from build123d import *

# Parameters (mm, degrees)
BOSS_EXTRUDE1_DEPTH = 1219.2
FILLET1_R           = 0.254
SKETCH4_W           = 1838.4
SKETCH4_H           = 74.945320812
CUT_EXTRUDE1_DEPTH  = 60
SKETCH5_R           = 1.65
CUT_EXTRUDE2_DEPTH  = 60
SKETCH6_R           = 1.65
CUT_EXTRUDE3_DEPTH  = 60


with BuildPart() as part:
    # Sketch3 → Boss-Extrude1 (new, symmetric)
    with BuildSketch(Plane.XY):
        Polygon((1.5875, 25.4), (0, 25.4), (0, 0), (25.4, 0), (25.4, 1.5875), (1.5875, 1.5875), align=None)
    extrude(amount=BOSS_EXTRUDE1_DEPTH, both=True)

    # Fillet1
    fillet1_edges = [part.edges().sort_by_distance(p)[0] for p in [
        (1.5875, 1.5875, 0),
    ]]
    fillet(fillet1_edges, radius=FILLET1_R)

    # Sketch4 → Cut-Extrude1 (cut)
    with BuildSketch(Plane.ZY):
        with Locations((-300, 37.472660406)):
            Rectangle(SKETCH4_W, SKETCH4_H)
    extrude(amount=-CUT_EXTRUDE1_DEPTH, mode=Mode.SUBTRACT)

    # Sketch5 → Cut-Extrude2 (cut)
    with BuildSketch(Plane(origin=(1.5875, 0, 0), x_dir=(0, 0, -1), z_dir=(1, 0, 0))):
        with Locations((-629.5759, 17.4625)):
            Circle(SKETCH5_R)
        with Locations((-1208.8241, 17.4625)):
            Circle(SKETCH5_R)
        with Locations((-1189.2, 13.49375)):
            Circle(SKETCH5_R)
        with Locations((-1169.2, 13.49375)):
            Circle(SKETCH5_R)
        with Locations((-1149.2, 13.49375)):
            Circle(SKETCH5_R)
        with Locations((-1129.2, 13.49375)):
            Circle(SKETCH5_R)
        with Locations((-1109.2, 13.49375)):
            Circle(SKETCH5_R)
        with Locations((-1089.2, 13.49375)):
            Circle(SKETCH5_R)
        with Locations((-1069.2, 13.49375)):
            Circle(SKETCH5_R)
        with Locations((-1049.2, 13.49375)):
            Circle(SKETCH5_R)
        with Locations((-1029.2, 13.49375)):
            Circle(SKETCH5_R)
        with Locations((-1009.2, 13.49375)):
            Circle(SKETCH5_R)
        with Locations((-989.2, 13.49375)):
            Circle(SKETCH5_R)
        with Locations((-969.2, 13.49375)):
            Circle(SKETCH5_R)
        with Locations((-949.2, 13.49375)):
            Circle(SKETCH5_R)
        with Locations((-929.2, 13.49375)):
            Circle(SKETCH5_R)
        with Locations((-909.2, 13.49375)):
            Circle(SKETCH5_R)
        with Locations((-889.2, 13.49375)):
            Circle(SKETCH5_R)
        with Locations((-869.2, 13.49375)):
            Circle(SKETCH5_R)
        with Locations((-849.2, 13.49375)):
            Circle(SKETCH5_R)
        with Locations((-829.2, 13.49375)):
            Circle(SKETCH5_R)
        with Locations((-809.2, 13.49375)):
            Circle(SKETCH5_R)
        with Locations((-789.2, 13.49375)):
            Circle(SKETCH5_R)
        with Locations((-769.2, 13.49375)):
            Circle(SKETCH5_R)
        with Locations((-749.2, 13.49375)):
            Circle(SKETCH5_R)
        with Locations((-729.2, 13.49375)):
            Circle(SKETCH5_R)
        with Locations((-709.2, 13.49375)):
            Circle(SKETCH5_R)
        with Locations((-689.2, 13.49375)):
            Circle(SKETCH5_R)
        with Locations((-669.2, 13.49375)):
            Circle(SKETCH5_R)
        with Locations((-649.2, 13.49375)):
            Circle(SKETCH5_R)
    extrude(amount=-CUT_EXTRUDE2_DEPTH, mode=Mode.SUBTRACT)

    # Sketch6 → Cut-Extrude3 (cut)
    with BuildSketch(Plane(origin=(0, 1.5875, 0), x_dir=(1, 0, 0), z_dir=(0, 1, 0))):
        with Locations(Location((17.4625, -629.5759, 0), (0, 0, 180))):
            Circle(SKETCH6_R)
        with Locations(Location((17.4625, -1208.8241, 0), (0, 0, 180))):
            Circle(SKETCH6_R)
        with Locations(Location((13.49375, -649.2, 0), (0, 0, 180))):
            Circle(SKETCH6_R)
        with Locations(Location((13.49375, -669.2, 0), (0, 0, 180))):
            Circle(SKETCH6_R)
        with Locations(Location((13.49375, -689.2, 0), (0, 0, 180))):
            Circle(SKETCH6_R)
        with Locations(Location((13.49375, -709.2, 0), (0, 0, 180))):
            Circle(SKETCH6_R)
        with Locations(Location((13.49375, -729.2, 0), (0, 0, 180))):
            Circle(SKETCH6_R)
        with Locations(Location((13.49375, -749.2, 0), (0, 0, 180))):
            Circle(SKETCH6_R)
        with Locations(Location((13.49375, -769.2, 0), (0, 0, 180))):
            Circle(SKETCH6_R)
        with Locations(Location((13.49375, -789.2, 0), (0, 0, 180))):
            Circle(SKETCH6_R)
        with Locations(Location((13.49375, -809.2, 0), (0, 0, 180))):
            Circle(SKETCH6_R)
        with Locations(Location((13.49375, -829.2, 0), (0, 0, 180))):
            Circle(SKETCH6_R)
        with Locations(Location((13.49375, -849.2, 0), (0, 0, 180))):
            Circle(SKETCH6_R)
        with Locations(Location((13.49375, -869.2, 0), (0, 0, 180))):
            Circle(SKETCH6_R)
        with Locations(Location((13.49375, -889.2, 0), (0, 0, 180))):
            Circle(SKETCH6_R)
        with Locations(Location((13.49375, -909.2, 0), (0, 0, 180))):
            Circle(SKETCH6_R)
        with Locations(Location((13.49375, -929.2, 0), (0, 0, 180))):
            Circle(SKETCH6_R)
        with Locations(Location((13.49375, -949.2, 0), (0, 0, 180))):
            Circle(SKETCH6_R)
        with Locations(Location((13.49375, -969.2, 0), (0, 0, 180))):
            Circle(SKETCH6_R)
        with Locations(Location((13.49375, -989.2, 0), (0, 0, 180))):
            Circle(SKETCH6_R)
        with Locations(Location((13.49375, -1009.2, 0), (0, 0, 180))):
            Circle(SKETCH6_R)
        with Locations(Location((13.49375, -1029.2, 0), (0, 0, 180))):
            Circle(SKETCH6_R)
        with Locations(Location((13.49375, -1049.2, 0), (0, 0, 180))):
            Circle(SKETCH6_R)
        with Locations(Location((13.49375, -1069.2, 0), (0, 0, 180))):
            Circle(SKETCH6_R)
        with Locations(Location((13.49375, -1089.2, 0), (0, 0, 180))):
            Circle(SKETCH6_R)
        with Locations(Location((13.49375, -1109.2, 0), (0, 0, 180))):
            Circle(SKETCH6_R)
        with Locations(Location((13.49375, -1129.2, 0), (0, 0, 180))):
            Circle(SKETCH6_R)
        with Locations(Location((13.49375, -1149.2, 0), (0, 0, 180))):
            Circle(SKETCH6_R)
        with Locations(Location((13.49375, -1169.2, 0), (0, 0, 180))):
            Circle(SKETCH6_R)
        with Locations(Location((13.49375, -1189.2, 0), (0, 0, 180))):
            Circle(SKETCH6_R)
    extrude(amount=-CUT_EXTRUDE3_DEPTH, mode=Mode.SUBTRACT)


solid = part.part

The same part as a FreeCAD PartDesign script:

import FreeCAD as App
import Part
import Sketcher
from FreeCAD import Vector
Q = App.Units.Quantity


def edges_at(feature, points):
    """Names of the edges that pass closest to the given points."""
    edges = feature.Shape.Edges
    near = lambda p: min(range(len(edges)), key=lambda i: edges[i].distToShape(Part.Vertex(*p))[0])
    return sorted({f"Edge{near(p) + 1}" for p in points})

doc = App.newDocument("Part")
params = doc.addObject("Spreadsheet::Sheet", "Params")
for row, (alias, value) in enumerate([
    ("sketch1_width", "1 in"),
    ("sketch1_width2", "0.0625 in"),
    ("pad1_length", "96 in"),
    ("fillet_radius", "0.01 in"),
    ("pocket1_length", "60 mm"),
    ("pocket2_length", "60 mm"),
    ("pocket3_length", "60 mm"),
], start=1):
    params.set(f"A{row}", alias)
    params.set(f"B{row}", "=" + value)
    params.setAlias(f"B{row}", alias)

body = doc.addObject("PartDesign::Body", "Body")

sketch1 = doc.addObject("Sketcher::SketchObject", "Sketch")
body.addObject(sketch1)
sketch1.AttachmentSupport = (doc.XY_Plane, [""])
sketch1.MapMode = "FlatFace"
sketch1.addGeometry([
    Part.LineSegment(Vector(1.6, 25.4, 0), Vector(0, 25.4, 0)),
    Part.LineSegment(Vector(0, 25.4, 0), Vector(0, 0, 0)),
    Part.LineSegment(Vector(0, 0, 0), Vector(25.4, 0, 0)),
    Part.LineSegment(Vector(25.4, 0, 0), Vector(25.4, 1.6, 0)),
    Part.LineSegment(Vector(25.4, 1.6, 0), Vector(1.6, 1.6, 0)),
    Part.LineSegment(Vector(1.6, 1.6, 0), Vector(1.6, 25.4, 0)),
], False)
sketch1.addConstraint([
    Sketcher.Constraint("Coincident", 0, 2, 1, 1),
    Sketcher.Constraint("Coincident", 1, 2, 2, 1),
    Sketcher.Constraint("Coincident", 2, 2, 3, 1),
    Sketcher.Constraint("Coincident", 3, 2, 4, 1),
    Sketcher.Constraint("Coincident", 4, 2, 5, 1),
    Sketcher.Constraint("Coincident", 5, 2, 0, 1),
    Sketcher.Constraint("Horizontal", 0),
    Sketcher.Constraint("Vertical", 1),
    Sketcher.Constraint("Horizontal", 2),
    Sketcher.Constraint("Vertical", 3),
    Sketcher.Constraint("Horizontal", 4),
    Sketcher.Constraint("Vertical", 5),
    Sketcher.Constraint("Coincident", 1, 2, -1, 1),
    Sketcher.Constraint("Equal", 2, 1),
    Sketcher.Constraint("Equal", 0, 3),
    Sketcher.Constraint("DistanceX", 2, 1, 2, 2, Q("1 in")),
    Sketcher.Constraint("DistanceX", 0, 2, 0, 1, Q("0.0625 in")),
])
sketch1.setExpression("Constraints[15]", "Params.sketch1_width")
sketch1.setExpression("Constraints[16]", "Params.sketch1_width2")
pad1 = doc.addObject("PartDesign::Pad", "Pad")
body.addObject(pad1)
pad1.Profile = sketch1
pad1.setExpression("Length", "Params.pad1_length")
pad1.Midplane = True
doc.recompute()

fillet = doc.addObject("PartDesign::Fillet", "Fillet")
body.addObject(fillet)
fillet.Base = (pad1, edges_at(pad1, [(1.587, 1.587, 0)]))
fillet.setExpression("Radius", "Params.fillet_radius")

sketch2 = doc.addObject("Sketcher::SketchObject", "Sketch001")
body.addObject(sketch2)
sketch2.AttachmentSupport = (doc.YZ_Plane, [""])
sketch2.MapMode = "FlatFace"
sketch2.addGeometry([
    Part.LineSegment(Vector(75, -1219, 0), Vector(0, -1219, 0)),
    Part.LineSegment(Vector(0, -1219, 0), Vector(0, 619, 0)),
    Part.LineSegment(Vector(0, 619, 0), Vector(75, 619, 0)),
    Part.LineSegment(Vector(75, 619, 0), Vector(75, -1219, 0)),
], False)
sketch2.addConstraint([
    Sketcher.Constraint("Coincident", 0, 2, 1, 1),
    Sketcher.Constraint("Coincident", 1, 2, 2, 1),
    Sketcher.Constraint("Coincident", 2, 2, 3, 1),
    Sketcher.Constraint("Coincident", 3, 2, 0, 1),
    Sketcher.Constraint("Horizontal", 0),
    Sketcher.Constraint("Vertical", 1),
    Sketcher.Constraint("Horizontal", 2),
    Sketcher.Constraint("Vertical", 3),
    Sketcher.Constraint("PointOnObject", 0, 2, -2),
    Sketcher.Constraint("DistanceY", 0, 2, -1, 1, Q("48 in")),
    Sketcher.Constraint("DistanceY", 1, 1, 1, 2, Q("1838.4 mm")),
    Sketcher.Constraint("DistanceX", 0, 2, 0, 1, Q("74.945321 mm")),
])
pocket1 = doc.addObject("PartDesign::Pocket", "Pocket")
body.addObject(pocket1)
pocket1.Profile = sketch2
pocket1.setExpression("Length", "Params.pocket1_length")
pocket1.Reversed = True

sketch3 = doc.addObject("Sketcher::SketchObject", "Sketch002")
body.addObject(sketch3)
sketch3.AttachmentSupport = (doc.YZ_Plane, [""])
sketch3.MapMode = "FlatFace"
sketch3.AttachmentOffset = App.Placement(Vector(0, 0, 0.0625 * 25.4), App.Rotation())
sketch3.addGeometry([
    Part.Circle(Vector(17.5, 629.6, 0), Vector(0, 0, 1), 1.6),
    Part.Circle(Vector(17.5, 1208.8, 0), Vector(0, 0, 1), 1.6),
    Part.Circle(Vector(13.5, 1189.2, 0), Vector(0, 0, 1), 1.6),
    Part.Circle(Vector(13.5, 1169.2, 0), Vector(0, 0, 1), 1.6),
    Part.Circle(Vector(13.5, 1149.2, 0), Vector(0, 0, 1), 1.6),
    Part.Circle(Vector(13.5, 1129.2, 0), Vector(0, 0, 1), 1.6),
    Part.Circle(Vector(13.5, 1109.2, 0), Vector(0, 0, 1), 1.6),
    Part.Circle(Vector(13.5, 1089.2, 0), Vector(0, 0, 1), 1.6),
    Part.Circle(Vector(13.5, 1069.2, 0), Vector(0, 0, 1), 1.6),
    Part.Circle(Vector(13.5, 1049.2, 0), Vector(0, 0, 1), 1.6),
    Part.Circle(Vector(13.5, 1029.2, 0), Vector(0, 0, 1), 1.6),
    Part.Circle(Vector(13.5, 1009.2, 0), Vector(0, 0, 1), 1.6),
    Part.Circle(Vector(13.5, 989.2, 0), Vector(0, 0, 1), 1.6),
    Part.Circle(Vector(13.5, 969.2, 0), Vector(0, 0, 1), 1.6),
    Part.Circle(Vector(13.5, 949.2, 0), Vector(0, 0, 1), 1.6),
    Part.Circle(Vector(13.5, 929.2, 0), Vector(0, 0, 1), 1.6),
    Part.Circle(Vector(13.5, 909.2, 0), Vector(0, 0, 1), 1.6),
    Part.Circle(Vector(13.5, 889.2, 0), Vector(0, 0, 1), 1.6),
    Part.Circle(Vector(13.5, 869.2, 0), Vector(0, 0, 1), 1.6),
    Part.Circle(Vector(13.5, 849.2, 0), Vector(0, 0, 1), 1.6),
    Part.Circle(Vector(13.5, 829.2, 0), Vector(0, 0, 1), 1.6),
    Part.Circle(Vector(13.5, 809.2, 0), Vector(0, 0, 1), 1.6),
    Part.Circle(Vector(13.5, 789.2, 0), Vector(0, 0, 1), 1.6),
    Part.Circle(Vector(13.5, 769.2, 0), Vector(0, 0, 1), 1.6),
    Part.Circle(Vector(13.5, 749.2, 0), Vector(0, 0, 1), 1.6),
    Part.Circle(Vector(13.5, 729.2, 0), Vector(0, 0, 1), 1.6),
    Part.Circle(Vector(13.5, 709.2, 0), Vector(0, 0, 1), 1.6),
    Part.Circle(Vector(13.5, 689.2, 0), Vector(0, 0, 1), 1.6),
    Part.Circle(Vector(13.5, 669.2, 0), Vector(0, 0, 1), 1.6),
    Part.Circle(Vector(13.5, 649.2, 0), Vector(0, 0, 1), 1.6),
], False)
sketch3.addConstraint([
    Sketcher.Constraint("Equal", 0, 1),
    Sketcher.Constraint("Equal", 1, 2),
    Sketcher.Constraint("Equal", 2, 3),
    Sketcher.Constraint("Equal", 3, 4),
    Sketcher.Constraint("Equal", 4, 5),
    Sketcher.Constraint("Equal", 5, 6),
    Sketcher.Constraint("Equal", 6, 7),
    Sketcher.Constraint("Equal", 7, 8),
    Sketcher.Constraint("Equal", 8, 9),
    Sketcher.Constraint("Equal", 9, 10),
    Sketcher.Constraint("Equal", 10, 11),
    Sketcher.Constraint("Equal", 11, 12),
    Sketcher.Constraint("Equal", 12, 13),
    Sketcher.Constraint("Equal", 13, 14),
    Sketcher.Constraint("Equal", 14, 15),
    Sketcher.Constraint("Equal", 15, 16),
    Sketcher.Constraint("Equal", 16, 17),
    Sketcher.Constraint("Equal", 17, 18),
    Sketcher.Constraint("Equal", 18, 19),
    Sketcher.Constraint("Equal", 19, 20),
    Sketcher.Constraint("Equal", 20, 21),
    Sketcher.Constraint("Equal", 21, 22),
    Sketcher.Constraint("Equal", 22, 23),
    Sketcher.Constraint("Equal", 23, 24),
    Sketcher.Constraint("Equal", 24, 25),
    Sketcher.Constraint("Equal", 25, 26),
    Sketcher.Constraint("Equal", 26, 27),
    Sketcher.Constraint("Equal", 27, 28),
    Sketcher.Constraint("Equal", 28, 29),
    Sketcher.Constraint("Vertical", 0, 3, 1, 3),
    Sketcher.Constraint("Vertical", 2, 3, 3, 3),
    Sketcher.Constraint("Vertical", 3, 3, 4, 3),
    Sketcher.Constraint("Vertical", 4, 3, 5, 3),
    Sketcher.Constraint("Vertical", 5, 3, 6, 3),
    Sketcher.Constraint("Vertical", 6, 3, 7, 3),
    Sketcher.Constraint("Vertical", 7, 3, 8, 3),
    Sketcher.Constraint("Vertical", 8, 3, 9, 3),
    Sketcher.Constraint("Vertical", 9, 3, 10, 3),
    Sketcher.Constraint("Vertical", 10, 3, 11, 3),
    Sketcher.Constraint("Vertical", 11, 3, 12, 3),
    Sketcher.Constraint("Vertical", 12, 3, 13, 3),
    Sketcher.Constraint("Vertical", 13, 3, 14, 3),
    Sketcher.Constraint("Vertical", 14, 3, 15, 3),
    Sketcher.Constraint("Vertical", 15, 3, 16, 3),
    Sketcher.Constraint("Vertical", 16, 3, 17, 3),
    Sketcher.Constraint("Vertical", 17, 3, 18, 3),
    Sketcher.Constraint("Vertical", 18, 3, 19, 3),
    Sketcher.Constraint("Vertical", 19, 3, 20, 3),
    Sketcher.Constraint("Vertical", 20, 3, 21, 3),
    Sketcher.Constraint("Vertical", 21, 3, 22, 3),
    Sketcher.Constraint("Vertical", 22, 3, 23, 3),
    Sketcher.Constraint("Vertical", 23, 3, 24, 3),
    Sketcher.Constraint("Vertical", 24, 3, 25, 3),
    Sketcher.Constraint("Vertical", 25, 3, 26, 3),
    Sketcher.Constraint("Vertical", 26, 3, 27, 3),
    Sketcher.Constraint("Vertical", 27, 3, 28, 3),
    Sketcher.Constraint("Vertical", 28, 3, 29, 3),
    Sketcher.Constraint("Diameter", 0, Q("3.3 mm")),
    Sketcher.Constraint("DistanceX", -1, 1, 0, 3, Q("0.6875 in")),
    Sketcher.Constraint("DistanceX", -1, 1, 2, 3, Q("0.53125 in")),
    Sketcher.Constraint("DistanceY", -1, 1, 1, 3, Q("47.5915 in")),
    Sketcher.Constraint("DistanceY", -1, 1, 0, 3, Q("629.5759 mm")),
    Sketcher.Constraint("DistanceY", -1, 1, 2, 3, Q("1189.2 mm")),
    Sketcher.Constraint("DistanceY", -1, 1, 3, 3, Q("1169.2 mm")),
    Sketcher.Constraint("DistanceY", -1, 1, 4, 3, Q("1149.2 mm")),
    Sketcher.Constraint("DistanceY", -1, 1, 5, 3, Q("1129.2 mm")),
    Sketcher.Constraint("DistanceY", -1, 1, 6, 3, Q("1109.2 mm")),
    Sketcher.Constraint("DistanceY", -1, 1, 7, 3, Q("1089.2 mm")),
    Sketcher.Constraint("DistanceY", -1, 1, 8, 3, Q("1069.2 mm")),
    Sketcher.Constraint("DistanceY", -1, 1, 9, 3, Q("1049.2 mm")),
    Sketcher.Constraint("DistanceY", -1, 1, 10, 3, Q("1029.2 mm")),
    Sketcher.Constraint("DistanceY", -1, 1, 11, 3, Q("1009.2 mm")),
    Sketcher.Constraint("DistanceY", -1, 1, 12, 3, Q("989.2 mm")),
    Sketcher.Constraint("DistanceY", -1, 1, 13, 3, Q("969.2 mm")),
    Sketcher.Constraint("DistanceY", -1, 1, 14, 3, Q("949.2 mm")),
    Sketcher.Constraint("DistanceY", -1, 1, 15, 3, Q("929.2 mm")),
    Sketcher.Constraint("DistanceY", -1, 1, 16, 3, Q("909.2 mm")),
    Sketcher.Constraint("DistanceY", -1, 1, 17, 3, Q("889.2 mm")),
    Sketcher.Constraint("DistanceY", -1, 1, 18, 3, Q("869.2 mm")),
    Sketcher.Constraint("DistanceY", -1, 1, 19, 3, Q("849.2 mm")),
    Sketcher.Constraint("DistanceY", -1, 1, 20, 3, Q("829.2 mm")),
    Sketcher.Constraint("DistanceY", -1, 1, 21, 3, Q("809.2 mm")),
    Sketcher.Constraint("DistanceY", -1, 1, 22, 3, Q("789.2 mm")),
    Sketcher.Constraint("DistanceY", -1, 1, 23, 3, Q("769.2 mm")),
    Sketcher.Constraint("DistanceY", -1, 1, 24, 3, Q("749.2 mm")),
    Sketcher.Constraint("DistanceY", -1, 1, 25, 3, Q("729.2 mm")),
    Sketcher.Constraint("DistanceY", -1, 1, 26, 3, Q("709.2 mm")),
    Sketcher.Constraint("DistanceY", -1, 1, 27, 3, Q("689.2 mm")),
    Sketcher.Constraint("DistanceY", -1, 1, 28, 3, Q("669.2 mm")),
    Sketcher.Constraint("DistanceY", -1, 1, 29, 3, Q("649.2 mm")),
])
pocket2 = doc.addObject("PartDesign::Pocket", "Pocket001")
body.addObject(pocket2)
pocket2.Profile = sketch3
pocket2.setExpression("Length", "Params.pocket2_length")

sketch4 = doc.addObject("Sketcher::SketchObject", "Sketch003")
body.addObject(sketch4)
sketch4.AttachmentSupport = (doc.XZ_Plane, [""])
sketch4.MapMode = "FlatFace"
sketch4.AttachmentOffset = App.Placement(Vector(0, 0, -0.0625 * 25.4), App.Rotation())
sketch4.addGeometry([
    Part.Circle(Vector(17.5, 629.6, 0), Vector(0, 0, 1), 1.6),
    Part.Circle(Vector(17.5, 1208.8, 0), Vector(0, 0, 1), 1.6),
    Part.Circle(Vector(13.5, 649.2, 0), Vector(0, 0, 1), 1.6),
    Part.Circle(Vector(13.5, 669.2, 0), Vector(0, 0, 1), 1.6),
    Part.Circle(Vector(13.5, 689.2, 0), Vector(0, 0, 1), 1.6),
    Part.Circle(Vector(13.5, 709.2, 0), Vector(0, 0, 1), 1.6),
    Part.Circle(Vector(13.5, 729.2, 0), Vector(0, 0, 1), 1.6),
    Part.Circle(Vector(13.5, 749.2, 0), Vector(0, 0, 1), 1.6),
    Part.Circle(Vector(13.5, 769.2, 0), Vector(0, 0, 1), 1.6),
    Part.Circle(Vector(13.5, 789.2, 0), Vector(0, 0, 1), 1.6),
    Part.Circle(Vector(13.5, 809.2, 0), Vector(0, 0, 1), 1.6),
    Part.Circle(Vector(13.5, 829.2, 0), Vector(0, 0, 1), 1.6),
    Part.Circle(Vector(13.5, 849.2, 0), Vector(0, 0, 1), 1.6),
    Part.Circle(Vector(13.5, 869.2, 0), Vector(0, 0, 1), 1.6),
    Part.Circle(Vector(13.5, 889.2, 0), Vector(0, 0, 1), 1.6),
    Part.Circle(Vector(13.5, 909.2, 0), Vector(0, 0, 1), 1.6),
    Part.Circle(Vector(13.5, 929.2, 0), Vector(0, 0, 1), 1.6),
    Part.Circle(Vector(13.5, 949.2, 0), Vector(0, 0, 1), 1.6),
    Part.Circle(Vector(13.5, 969.2, 0), Vector(0, 0, 1), 1.6),
    Part.Circle(Vector(13.5, 989.2, 0), Vector(0, 0, 1), 1.6),
    Part.Circle(Vector(13.5, 1009.2, 0), Vector(0, 0, 1), 1.6),
    Part.Circle(Vector(13.5, 1029.2, 0), Vector(0, 0, 1), 1.6),
    Part.Circle(Vector(13.5, 1049.2, 0), Vector(0, 0, 1), 1.6),
    Part.Circle(Vector(13.5, 1069.2, 0), Vector(0, 0, 1), 1.6),
    Part.Circle(Vector(13.5, 1089.2, 0), Vector(0, 0, 1), 1.6),
    Part.Circle(Vector(13.5, 1109.2, 0), Vector(0, 0, 1), 1.6),
    Part.Circle(Vector(13.5, 1129.2, 0), Vector(0, 0, 1), 1.6),
    Part.Circle(Vector(13.5, 1149.2, 0), Vector(0, 0, 1), 1.6),
    Part.Circle(Vector(13.5, 1169.2, 0), Vector(0, 0, 1), 1.6),
    Part.Circle(Vector(13.5, 1189.2, 0), Vector(0, 0, 1), 1.6),
], False)
sketch4.addConstraint([
    Sketcher.Constraint("Equal", 0, 1),
    Sketcher.Constraint("Equal", 1, 2),
    Sketcher.Constraint("Equal", 2, 3),
    Sketcher.Constraint("Equal", 3, 4),
    Sketcher.Constraint("Equal", 4, 5),
    Sketcher.Constraint("Equal", 5, 6),
    Sketcher.Constraint("Equal", 6, 7),
    Sketcher.Constraint("Equal", 7, 8),
    Sketcher.Constraint("Equal", 8, 9),
    Sketcher.Constraint("Equal", 9, 10),
    Sketcher.Constraint("Equal", 10, 11),
    Sketcher.Constraint("Equal", 11, 12),
    Sketcher.Constraint("Equal", 12, 13),
    Sketcher.Constraint("Equal", 13, 14),
    Sketcher.Constraint("Equal", 14, 15),
    Sketcher.Constraint("Equal", 15, 16),
    Sketcher.Constraint("Equal", 16, 17),
    Sketcher.Constraint("Equal", 17, 18),
    Sketcher.Constraint("Equal", 18, 19),
    Sketcher.Constraint("Equal", 19, 20),
    Sketcher.Constraint("Equal", 20, 21),
    Sketcher.Constraint("Equal", 21, 22),
    Sketcher.Constraint("Equal", 22, 23),
    Sketcher.Constraint("Equal", 23, 24),
    Sketcher.Constraint("Equal", 24, 25),
    Sketcher.Constraint("Equal", 25, 26),
    Sketcher.Constraint("Equal", 26, 27),
    Sketcher.Constraint("Equal", 27, 28),
    Sketcher.Constraint("Equal", 28, 29),
    Sketcher.Constraint("Vertical", 0, 3, 1, 3),
    Sketcher.Constraint("Vertical", 2, 3, 3, 3),
    Sketcher.Constraint("Vertical", 3, 3, 4, 3),
    Sketcher.Constraint("Vertical", 4, 3, 5, 3),
    Sketcher.Constraint("Vertical", 5, 3, 6, 3),
    Sketcher.Constraint("Vertical", 6, 3, 7, 3),
    Sketcher.Constraint("Vertical", 7, 3, 8, 3),
    Sketcher.Constraint("Vertical", 8, 3, 9, 3),
    Sketcher.Constraint("Vertical", 9, 3, 10, 3),
    Sketcher.Constraint("Vertical", 10, 3, 11, 3),
    Sketcher.Constraint("Vertical", 11, 3, 12, 3),
    Sketcher.Constraint("Vertical", 12, 3, 13, 3),
    Sketcher.Constraint("Vertical", 13, 3, 14, 3),
    Sketcher.Constraint("Vertical", 14, 3, 15, 3),
    Sketcher.Constraint("Vertical", 15, 3, 16, 3),
    Sketcher.Constraint("Vertical", 16, 3, 17, 3),
    Sketcher.Constraint("Vertical", 17, 3, 18, 3),
    Sketcher.Constraint("Vertical", 18, 3, 19, 3),
    Sketcher.Constraint("Vertical", 19, 3, 20, 3),
    Sketcher.Constraint("Vertical", 20, 3, 21, 3),
    Sketcher.Constraint("Vertical", 21, 3, 22, 3),
    Sketcher.Constraint("Vertical", 22, 3, 23, 3),
    Sketcher.Constraint("Vertical", 23, 3, 24, 3),
    Sketcher.Constraint("Vertical", 24, 3, 25, 3),
    Sketcher.Constraint("Vertical", 25, 3, 26, 3),
    Sketcher.Constraint("Vertical", 26, 3, 27, 3),
    Sketcher.Constraint("Vertical", 27, 3, 28, 3),
    Sketcher.Constraint("Vertical", 28, 3, 29, 3),
    Sketcher.Constraint("Diameter", 0, Q("3.3 mm")),
    Sketcher.Constraint("DistanceX", -1, 1, 0, 3, Q("0.6875 in")),
    Sketcher.Constraint("DistanceX", -1, 1, 2, 3, Q("0.53125 in")),
    Sketcher.Constraint("DistanceY", -1, 1, 1, 3, Q("47.5915 in")),
    Sketcher.Constraint("DistanceY", -1, 1, 0, 3, Q("629.5759 mm")),
    Sketcher.Constraint("DistanceY", -1, 1, 2, 3, Q("649.2 mm")),
    Sketcher.Constraint("DistanceY", -1, 1, 3, 3, Q("669.2 mm")),
    Sketcher.Constraint("DistanceY", -1, 1, 4, 3, Q("689.2 mm")),
    Sketcher.Constraint("DistanceY", -1, 1, 5, 3, Q("709.2 mm")),
    Sketcher.Constraint("DistanceY", -1, 1, 6, 3, Q("729.2 mm")),
    Sketcher.Constraint("DistanceY", -1, 1, 7, 3, Q("749.2 mm")),
    Sketcher.Constraint("DistanceY", -1, 1, 8, 3, Q("769.2 mm")),
    Sketcher.Constraint("DistanceY", -1, 1, 9, 3, Q("789.2 mm")),
    Sketcher.Constraint("DistanceY", -1, 1, 10, 3, Q("809.2 mm")),
    Sketcher.Constraint("DistanceY", -1, 1, 11, 3, Q("829.2 mm")),
    Sketcher.Constraint("DistanceY", -1, 1, 12, 3, Q("849.2 mm")),
    Sketcher.Constraint("DistanceY", -1, 1, 13, 3, Q("869.2 mm")),
    Sketcher.Constraint("DistanceY", -1, 1, 14, 3, Q("889.2 mm")),
    Sketcher.Constraint("DistanceY", -1, 1, 15, 3, Q("909.2 mm")),
    Sketcher.Constraint("DistanceY", -1, 1, 16, 3, Q("929.2 mm")),
    Sketcher.Constraint("DistanceY", -1, 1, 17, 3, Q("949.2 mm")),
    Sketcher.Constraint("DistanceY", -1, 1, 18, 3, Q("969.2 mm")),
    Sketcher.Constraint("DistanceY", -1, 1, 19, 3, Q("989.2 mm")),
    Sketcher.Constraint("DistanceY", -1, 1, 20, 3, Q("1009.2 mm")),
    Sketcher.Constraint("DistanceY", -1, 1, 21, 3, Q("1029.2 mm")),
    Sketcher.Constraint("DistanceY", -1, 1, 22, 3, Q("1049.2 mm")),
    Sketcher.Constraint("DistanceY", -1, 1, 23, 3, Q("1069.2 mm")),
    Sketcher.Constraint("DistanceY", -1, 1, 24, 3, Q("1089.2 mm")),
    Sketcher.Constraint("DistanceY", -1, 1, 25, 3, Q("1109.2 mm")),
    Sketcher.Constraint("DistanceY", -1, 1, 26, 3, Q("1129.2 mm")),
    Sketcher.Constraint("DistanceY", -1, 1, 27, 3, Q("1149.2 mm")),
    Sketcher.Constraint("DistanceY", -1, 1, 28, 3, Q("1169.2 mm")),
    Sketcher.Constraint("DistanceY", -1, 1, 29, 3, Q("1189.2 mm")),
])
pocket3 = doc.addObject("PartDesign::Pocket", "Pocket002")
body.addObject(pocket3)
pocket3.Profile = sketch4
pocket3.setExpression("Length", "Params.pocket3_length")
pocket3.Reversed = True

doc.recompute()
